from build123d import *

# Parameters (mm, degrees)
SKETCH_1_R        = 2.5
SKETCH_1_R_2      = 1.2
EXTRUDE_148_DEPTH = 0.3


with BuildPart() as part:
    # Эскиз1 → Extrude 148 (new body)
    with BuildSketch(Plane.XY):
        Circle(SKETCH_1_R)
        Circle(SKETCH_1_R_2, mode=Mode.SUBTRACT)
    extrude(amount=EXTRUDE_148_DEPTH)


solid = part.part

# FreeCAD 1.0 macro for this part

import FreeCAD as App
import Part
import Sketcher

doc = App.newDocument("Part")
body = doc.addObject("PartDesign::Body", "Body")

# Sketch on XY plane
sketch1 = doc.addObject("Sketcher::SketchObject", "Sketch")
body.addObject(sketch1)
sketch1.AttachmentSupport = (doc.XY_Plane, [""])
sketch1.MapMode = "FlatFace"
sketch1.addGeometry([
    Part.Circle(App.Vector(0, 0, 0), App.Vector(0, 0, 1), 2.5),
    Part.Circle(App.Vector(0, 0, 0), App.Vector(0, 0, 1), 1.2),
], False)
sketch1.addConstraint([
    Sketcher.Constraint("Coincident", 0, 3, -1, 1),
    Sketcher.Constraint("Coincident", 1, 3, -1, 1),
    Sketcher.Constraint("Diameter", 0, 5.0),
    Sketcher.Constraint("Diameter", 1, 2.4),
])
pad1 = doc.addObject("PartDesign::Pad", "Pad")
body.addObject(pad1)
pad1.Profile = sketch1
pad1.Length = 0.3

doc.recompute()
